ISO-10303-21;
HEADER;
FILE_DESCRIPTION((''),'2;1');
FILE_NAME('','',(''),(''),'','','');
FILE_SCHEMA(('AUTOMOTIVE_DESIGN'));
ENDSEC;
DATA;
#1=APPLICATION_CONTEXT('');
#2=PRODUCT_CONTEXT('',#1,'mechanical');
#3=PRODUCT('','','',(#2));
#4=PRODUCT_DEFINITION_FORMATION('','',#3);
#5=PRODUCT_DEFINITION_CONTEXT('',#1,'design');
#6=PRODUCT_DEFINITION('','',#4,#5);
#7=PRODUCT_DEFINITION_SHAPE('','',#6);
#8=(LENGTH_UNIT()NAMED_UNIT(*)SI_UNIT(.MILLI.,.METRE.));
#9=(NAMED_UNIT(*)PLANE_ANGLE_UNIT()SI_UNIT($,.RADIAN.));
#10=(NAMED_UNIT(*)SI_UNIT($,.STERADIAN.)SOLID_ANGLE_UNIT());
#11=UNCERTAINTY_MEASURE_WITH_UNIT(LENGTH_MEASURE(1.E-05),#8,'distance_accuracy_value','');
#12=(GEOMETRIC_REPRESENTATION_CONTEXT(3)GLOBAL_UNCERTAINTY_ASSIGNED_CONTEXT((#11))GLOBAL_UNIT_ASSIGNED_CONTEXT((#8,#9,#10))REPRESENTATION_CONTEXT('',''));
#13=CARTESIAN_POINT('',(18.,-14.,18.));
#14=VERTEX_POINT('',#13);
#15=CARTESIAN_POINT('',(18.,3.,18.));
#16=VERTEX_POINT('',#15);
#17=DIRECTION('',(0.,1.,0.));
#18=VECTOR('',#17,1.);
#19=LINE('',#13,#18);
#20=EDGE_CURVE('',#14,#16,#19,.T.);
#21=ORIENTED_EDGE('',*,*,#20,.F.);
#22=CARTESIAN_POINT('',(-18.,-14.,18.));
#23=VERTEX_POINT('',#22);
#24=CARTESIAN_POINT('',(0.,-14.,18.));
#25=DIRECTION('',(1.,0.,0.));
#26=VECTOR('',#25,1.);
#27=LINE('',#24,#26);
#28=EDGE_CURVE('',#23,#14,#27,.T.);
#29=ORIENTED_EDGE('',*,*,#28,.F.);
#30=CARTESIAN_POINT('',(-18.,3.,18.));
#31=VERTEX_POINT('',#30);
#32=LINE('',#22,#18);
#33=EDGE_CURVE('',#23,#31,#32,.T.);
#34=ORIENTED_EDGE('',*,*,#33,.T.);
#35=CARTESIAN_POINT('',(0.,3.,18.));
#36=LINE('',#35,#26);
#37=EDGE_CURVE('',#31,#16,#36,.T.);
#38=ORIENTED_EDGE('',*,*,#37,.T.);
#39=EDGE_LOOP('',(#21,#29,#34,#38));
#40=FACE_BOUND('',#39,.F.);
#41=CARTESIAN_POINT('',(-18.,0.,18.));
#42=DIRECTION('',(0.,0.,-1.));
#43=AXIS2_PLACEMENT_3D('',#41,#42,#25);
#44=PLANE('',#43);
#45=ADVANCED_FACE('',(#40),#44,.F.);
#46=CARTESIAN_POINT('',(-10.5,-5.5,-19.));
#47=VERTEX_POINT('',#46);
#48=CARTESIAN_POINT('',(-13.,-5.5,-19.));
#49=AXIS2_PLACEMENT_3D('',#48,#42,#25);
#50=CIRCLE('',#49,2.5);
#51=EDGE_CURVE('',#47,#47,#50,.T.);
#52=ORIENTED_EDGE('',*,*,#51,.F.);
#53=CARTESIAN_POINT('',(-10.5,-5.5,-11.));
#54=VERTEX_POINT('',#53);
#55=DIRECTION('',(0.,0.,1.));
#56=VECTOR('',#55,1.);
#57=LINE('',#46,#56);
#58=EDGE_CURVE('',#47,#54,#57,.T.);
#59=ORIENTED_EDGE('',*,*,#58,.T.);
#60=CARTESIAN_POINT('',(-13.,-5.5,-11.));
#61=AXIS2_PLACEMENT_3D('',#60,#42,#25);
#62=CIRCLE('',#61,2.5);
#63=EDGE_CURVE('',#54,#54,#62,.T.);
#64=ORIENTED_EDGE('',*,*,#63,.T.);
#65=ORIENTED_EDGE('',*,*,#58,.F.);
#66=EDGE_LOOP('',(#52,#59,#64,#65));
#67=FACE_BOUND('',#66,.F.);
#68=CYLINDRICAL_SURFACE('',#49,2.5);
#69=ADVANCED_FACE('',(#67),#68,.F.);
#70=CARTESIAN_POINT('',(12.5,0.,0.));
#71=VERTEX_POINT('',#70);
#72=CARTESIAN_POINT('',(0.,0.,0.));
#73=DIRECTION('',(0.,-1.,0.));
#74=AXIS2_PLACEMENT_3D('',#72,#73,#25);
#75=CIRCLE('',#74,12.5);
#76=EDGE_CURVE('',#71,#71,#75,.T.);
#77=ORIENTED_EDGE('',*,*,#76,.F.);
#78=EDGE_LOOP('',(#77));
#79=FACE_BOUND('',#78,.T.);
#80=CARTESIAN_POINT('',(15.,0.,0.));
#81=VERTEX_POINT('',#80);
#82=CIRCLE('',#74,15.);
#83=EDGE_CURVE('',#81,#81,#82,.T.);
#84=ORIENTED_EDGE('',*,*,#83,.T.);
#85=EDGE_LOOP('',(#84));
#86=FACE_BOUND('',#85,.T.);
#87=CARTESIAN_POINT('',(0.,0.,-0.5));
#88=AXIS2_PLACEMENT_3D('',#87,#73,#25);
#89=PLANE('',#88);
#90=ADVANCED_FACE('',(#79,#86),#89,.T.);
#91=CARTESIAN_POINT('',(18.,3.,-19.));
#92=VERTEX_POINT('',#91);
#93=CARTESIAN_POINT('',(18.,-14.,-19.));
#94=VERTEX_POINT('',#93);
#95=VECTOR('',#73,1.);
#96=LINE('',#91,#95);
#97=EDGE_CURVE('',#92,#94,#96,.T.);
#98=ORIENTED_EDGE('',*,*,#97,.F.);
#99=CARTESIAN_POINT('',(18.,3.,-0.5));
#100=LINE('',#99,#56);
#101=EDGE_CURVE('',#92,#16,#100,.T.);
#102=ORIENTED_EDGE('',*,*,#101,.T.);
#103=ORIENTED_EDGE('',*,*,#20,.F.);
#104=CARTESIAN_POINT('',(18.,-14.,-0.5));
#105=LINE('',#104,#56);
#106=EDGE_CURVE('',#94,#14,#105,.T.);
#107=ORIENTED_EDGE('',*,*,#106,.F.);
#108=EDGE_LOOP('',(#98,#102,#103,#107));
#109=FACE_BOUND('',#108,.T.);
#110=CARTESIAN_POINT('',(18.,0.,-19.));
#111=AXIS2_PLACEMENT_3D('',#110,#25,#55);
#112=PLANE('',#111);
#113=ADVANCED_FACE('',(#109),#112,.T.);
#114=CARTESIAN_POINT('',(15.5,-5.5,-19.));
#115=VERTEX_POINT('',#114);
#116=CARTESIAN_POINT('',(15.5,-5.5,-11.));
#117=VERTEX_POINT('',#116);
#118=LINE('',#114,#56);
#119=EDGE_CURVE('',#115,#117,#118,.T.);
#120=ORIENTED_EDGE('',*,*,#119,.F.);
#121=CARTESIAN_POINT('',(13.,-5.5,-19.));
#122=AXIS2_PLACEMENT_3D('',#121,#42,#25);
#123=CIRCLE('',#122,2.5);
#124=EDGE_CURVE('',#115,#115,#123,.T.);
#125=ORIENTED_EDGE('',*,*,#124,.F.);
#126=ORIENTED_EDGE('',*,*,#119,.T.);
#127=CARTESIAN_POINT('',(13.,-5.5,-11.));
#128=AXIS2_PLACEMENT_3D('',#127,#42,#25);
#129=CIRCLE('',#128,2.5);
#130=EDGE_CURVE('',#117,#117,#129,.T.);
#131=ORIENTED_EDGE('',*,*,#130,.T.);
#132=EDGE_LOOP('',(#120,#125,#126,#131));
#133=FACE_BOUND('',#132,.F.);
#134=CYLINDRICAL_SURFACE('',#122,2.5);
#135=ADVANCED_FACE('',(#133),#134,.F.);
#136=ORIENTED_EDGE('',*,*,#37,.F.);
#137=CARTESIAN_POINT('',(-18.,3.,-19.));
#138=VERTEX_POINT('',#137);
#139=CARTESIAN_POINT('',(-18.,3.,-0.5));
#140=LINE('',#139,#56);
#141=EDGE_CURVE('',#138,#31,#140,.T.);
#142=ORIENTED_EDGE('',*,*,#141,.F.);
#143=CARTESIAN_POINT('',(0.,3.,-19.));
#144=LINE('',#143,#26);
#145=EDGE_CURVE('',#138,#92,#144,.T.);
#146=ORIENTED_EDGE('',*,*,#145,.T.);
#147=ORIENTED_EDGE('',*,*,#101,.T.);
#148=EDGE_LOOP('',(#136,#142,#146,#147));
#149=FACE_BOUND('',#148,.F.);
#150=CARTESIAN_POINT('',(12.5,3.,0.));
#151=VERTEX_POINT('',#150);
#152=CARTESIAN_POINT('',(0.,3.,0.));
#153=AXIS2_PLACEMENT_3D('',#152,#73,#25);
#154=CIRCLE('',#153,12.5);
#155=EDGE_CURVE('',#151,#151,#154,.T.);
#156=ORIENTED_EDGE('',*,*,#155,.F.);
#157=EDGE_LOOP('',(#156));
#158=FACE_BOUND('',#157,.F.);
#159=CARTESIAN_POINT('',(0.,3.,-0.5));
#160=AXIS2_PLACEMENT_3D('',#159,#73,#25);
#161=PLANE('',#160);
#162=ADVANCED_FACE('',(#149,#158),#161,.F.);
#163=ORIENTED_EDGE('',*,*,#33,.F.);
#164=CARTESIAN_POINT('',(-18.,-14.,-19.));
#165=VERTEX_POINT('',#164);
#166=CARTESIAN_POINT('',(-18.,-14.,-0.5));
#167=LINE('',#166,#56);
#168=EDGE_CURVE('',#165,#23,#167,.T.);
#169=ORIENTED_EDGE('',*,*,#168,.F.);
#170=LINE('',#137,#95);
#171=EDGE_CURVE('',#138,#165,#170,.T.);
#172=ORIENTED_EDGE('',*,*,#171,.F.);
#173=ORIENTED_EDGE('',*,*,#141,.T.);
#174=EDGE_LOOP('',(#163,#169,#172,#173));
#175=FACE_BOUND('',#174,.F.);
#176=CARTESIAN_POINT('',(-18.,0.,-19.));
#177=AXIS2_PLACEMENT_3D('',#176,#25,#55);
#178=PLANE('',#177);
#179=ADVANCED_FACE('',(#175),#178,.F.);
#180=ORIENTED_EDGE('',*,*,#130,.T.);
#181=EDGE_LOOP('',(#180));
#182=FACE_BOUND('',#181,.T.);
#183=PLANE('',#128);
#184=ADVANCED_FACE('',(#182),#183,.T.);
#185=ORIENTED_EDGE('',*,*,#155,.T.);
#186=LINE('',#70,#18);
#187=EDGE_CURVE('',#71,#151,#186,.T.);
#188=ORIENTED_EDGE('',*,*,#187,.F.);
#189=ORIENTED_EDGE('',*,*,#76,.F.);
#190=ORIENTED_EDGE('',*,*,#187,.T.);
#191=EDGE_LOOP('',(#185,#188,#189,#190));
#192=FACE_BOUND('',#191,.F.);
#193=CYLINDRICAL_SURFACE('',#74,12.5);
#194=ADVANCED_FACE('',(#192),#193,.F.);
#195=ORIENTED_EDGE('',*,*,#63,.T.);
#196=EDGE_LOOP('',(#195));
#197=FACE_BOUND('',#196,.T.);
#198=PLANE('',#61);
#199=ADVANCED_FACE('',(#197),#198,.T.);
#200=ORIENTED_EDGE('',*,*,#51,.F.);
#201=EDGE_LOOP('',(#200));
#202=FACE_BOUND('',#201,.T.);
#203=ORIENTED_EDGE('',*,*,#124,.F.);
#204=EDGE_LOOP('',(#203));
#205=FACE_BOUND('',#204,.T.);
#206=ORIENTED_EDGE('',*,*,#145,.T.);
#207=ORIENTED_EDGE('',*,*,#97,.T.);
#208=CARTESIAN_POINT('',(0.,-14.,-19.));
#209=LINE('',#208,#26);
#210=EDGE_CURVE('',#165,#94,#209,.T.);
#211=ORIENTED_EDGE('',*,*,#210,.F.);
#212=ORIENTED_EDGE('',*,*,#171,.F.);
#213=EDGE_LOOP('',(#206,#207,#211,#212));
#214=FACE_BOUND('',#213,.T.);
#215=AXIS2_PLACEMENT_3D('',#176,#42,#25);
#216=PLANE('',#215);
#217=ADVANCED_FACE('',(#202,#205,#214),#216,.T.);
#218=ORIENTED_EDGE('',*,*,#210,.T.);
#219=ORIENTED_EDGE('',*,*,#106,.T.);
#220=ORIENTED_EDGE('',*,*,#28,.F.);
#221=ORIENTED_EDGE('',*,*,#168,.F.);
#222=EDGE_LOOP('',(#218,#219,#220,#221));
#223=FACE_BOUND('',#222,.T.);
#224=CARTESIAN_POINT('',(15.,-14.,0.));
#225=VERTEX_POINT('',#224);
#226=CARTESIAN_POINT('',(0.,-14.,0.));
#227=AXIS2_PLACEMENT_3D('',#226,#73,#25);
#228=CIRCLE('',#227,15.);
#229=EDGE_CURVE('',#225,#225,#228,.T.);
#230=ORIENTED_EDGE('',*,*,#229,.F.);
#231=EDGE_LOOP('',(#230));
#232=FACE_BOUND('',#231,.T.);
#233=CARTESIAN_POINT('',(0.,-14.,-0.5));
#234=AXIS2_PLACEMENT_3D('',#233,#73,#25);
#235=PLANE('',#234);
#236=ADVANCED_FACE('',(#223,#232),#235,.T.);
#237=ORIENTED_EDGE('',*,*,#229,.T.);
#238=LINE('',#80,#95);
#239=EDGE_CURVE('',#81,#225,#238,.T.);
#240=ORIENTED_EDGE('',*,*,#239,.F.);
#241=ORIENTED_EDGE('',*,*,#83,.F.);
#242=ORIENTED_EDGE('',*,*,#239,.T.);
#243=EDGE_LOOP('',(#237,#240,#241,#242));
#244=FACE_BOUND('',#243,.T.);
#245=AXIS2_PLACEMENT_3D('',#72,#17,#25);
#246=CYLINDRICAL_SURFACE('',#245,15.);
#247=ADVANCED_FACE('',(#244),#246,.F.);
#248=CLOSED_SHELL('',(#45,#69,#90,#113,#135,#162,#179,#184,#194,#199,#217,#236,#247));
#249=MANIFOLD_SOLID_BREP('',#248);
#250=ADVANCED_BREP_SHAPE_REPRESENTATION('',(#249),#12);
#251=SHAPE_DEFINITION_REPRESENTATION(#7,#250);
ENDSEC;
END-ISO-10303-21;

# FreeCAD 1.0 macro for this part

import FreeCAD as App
import Part
import Sketcher
Q = App.Units.Quantity


def add_polygon(sketch, points):
    """Adds a closed chain of lines whose ends are joined by coincident constraints."""
    first, n = sketch.GeometryCount, len(points)
    for a, b in zip(points, points[1:] + points[:1]):
        sketch.addGeometry(Part.LineSegment(App.Vector(*a, 0), App.Vector(*b, 0)), False)
    for i in range(n):
        sketch.addConstraint(Sketcher.Constraint("Coincident", first + i, 2, first + (i + 1) % n, 1))

doc = App.newDocument("Part")
body = doc.addObject("PartDesign::Body", "Body")

# Sketch on XZ plane
sketch1 = doc.addObject("Sketcher::SketchObject", "Sketch")
body.addObject(sketch1)
sketch1.AttachmentSupport = (doc.XZ_Plane, [""])
sketch1.MapMode = "FlatFace"
add_polygon(sketch1, [(-18, 18), (-18, -19), (18, -19), (18, 18)])  # lines 0-3
sketch1.addGeometry(Part.Circle(App.Vector(0, 0, 0), App.Vector(0, 0, 1), 15), False)  # 4
sketch1.addConstraint([
    Sketcher.Constraint("Vertical", 0),
    Sketcher.Constraint("Horizontal", 1),
    Sketcher.Constraint("Vertical", 2),
    Sketcher.Constraint("Horizontal", 3),
    Sketcher.Constraint("Coincident", 4, 3, -1, 1),
    Sketcher.Constraint("Diameter", 4, Q("30 mm")),
    Sketcher.Constraint("DistanceX", 1, 1, 1, 2, Q("36 mm")),
    Sketcher.Constraint("DistanceY", 0, 2, 0, 1, Q("37 mm")),
    Sketcher.Constraint("DistanceX", 0, 2, -1, 1, Q("18 mm")),
    Sketcher.Constraint("DistanceY", 0, 2, -1, 1, Q("19 mm")),
])
pad1 = doc.addObject("PartDesign::Pad", "Pad")
body.addObject(pad1)
pad1.Profile = sketch1
pad1.Length = 14

# Sketch on XZ plane
sketch2 = doc.addObject("Sketcher::SketchObject", "Sketch001")
body.addObject(sketch2)
sketch2.AttachmentSupport = (doc.XZ_Plane, [""])
sketch2.MapMode = "FlatFace"
add_polygon(sketch2, [(-18, 18), (-18, -19), (18, -19), (18, 18)])  # lines 0-3
sketch2.addGeometry(Part.Circle(App.Vector(0, 0, 0), App.Vector(0, 0, 1), 12), False)  # 4
sketch2.addConstraint([
    Sketcher.Constraint("Vertical", 0),
    Sketcher.Constraint("Horizontal", 1),
    Sketcher.Constraint("Vertical", 2),
    Sketcher.Constraint("Horizontal", 3),
    Sketcher.Constraint("Coincident", 4, 3, -1, 1),
    Sketcher.Constraint("Diameter", 4, Q("25 mm")),
    Sketcher.Constraint("DistanceX", 1, 1, 1, 2, Q("36 mm")),
    Sketcher.Constraint("DistanceY", 0, 2, 0, 1, Q("37 mm")),
    Sketcher.Constraint("DistanceX", 0, 2, -1, 1, Q("18 mm")),
    Sketcher.Constraint("DistanceY", 0, 2, -1, 1, Q("19 mm")),
])
pad2 = doc.addObject("PartDesign::Pad", "Pad001")
body.addObject(pad2)
pad2.Profile = sketch2
pad2.Length = 3
pad2.Reversed = True

# Sketch on XY plane
sketch3 = doc.addObject("Sketcher::SketchObject", "Sketch002")
body.addObject(sketch3)
sketch3.AttachmentSupport = (doc.XY_Plane, [""])
sketch3.MapMode = "FlatFace"
sketch3.AttachmentOffset = App.Placement(App.Vector(0, 0, -19), App.Rotation())
sketch3.addGeometry([
    Part.Circle(App.Vector(-13, -5.5, 0), App.Vector(0, 0, 1), 2.5),
    Part.Circle(App.Vector(13, -5.5, 0), App.Vector(0, 0, 1), 2.5),
], False)
sketch3.addConstraint([
    Sketcher.Constraint("Equal", 0, 1),
    Sketcher.Constraint("Symmetric", 0, 3, 1, 3, -2),
    Sketcher.Constraint("Diameter", 0, Q("5 mm")),
    Sketcher.Constraint("DistanceX", 0, 3, -1, 1, Q("13 mm")),
    Sketcher.Constraint("DistanceY", 0, 3, -1, 1, Q("5.5 mm")),
])
pocket1 = doc.addObject("PartDesign::Pocket", "Pocket")
body.addObject(pocket1)
pocket1.Profile = sketch3
pocket1.Length = 8
pocket1.Reversed = True

doc.recompute()
